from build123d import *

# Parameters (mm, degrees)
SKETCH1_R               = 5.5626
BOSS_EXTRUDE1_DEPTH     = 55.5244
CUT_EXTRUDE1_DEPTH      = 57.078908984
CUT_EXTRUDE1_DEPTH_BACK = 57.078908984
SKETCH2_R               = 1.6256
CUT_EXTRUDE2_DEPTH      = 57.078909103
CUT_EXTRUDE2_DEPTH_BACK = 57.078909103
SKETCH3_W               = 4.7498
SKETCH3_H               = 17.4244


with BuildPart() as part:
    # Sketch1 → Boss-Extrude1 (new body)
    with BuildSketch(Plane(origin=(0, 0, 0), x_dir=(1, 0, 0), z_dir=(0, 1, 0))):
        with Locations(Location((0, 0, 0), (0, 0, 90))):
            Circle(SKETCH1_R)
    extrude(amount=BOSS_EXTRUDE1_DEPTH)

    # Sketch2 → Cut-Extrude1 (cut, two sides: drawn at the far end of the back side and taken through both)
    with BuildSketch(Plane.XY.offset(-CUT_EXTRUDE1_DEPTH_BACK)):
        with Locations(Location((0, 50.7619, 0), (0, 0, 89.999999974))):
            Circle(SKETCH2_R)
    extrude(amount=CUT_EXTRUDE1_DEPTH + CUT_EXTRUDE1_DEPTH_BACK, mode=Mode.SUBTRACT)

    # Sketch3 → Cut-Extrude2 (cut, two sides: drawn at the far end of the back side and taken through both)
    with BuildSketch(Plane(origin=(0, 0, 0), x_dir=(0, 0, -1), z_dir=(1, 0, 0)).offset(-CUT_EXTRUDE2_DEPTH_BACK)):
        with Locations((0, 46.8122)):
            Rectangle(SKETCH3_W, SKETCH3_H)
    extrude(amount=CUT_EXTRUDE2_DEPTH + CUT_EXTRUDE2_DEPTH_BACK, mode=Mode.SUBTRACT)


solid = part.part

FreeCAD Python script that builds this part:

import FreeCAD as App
import Part
import Sketcher
from FreeCAD import Vector
Q = App.Units.Quantity


def add_polygon(sketch, points):
    """Adds a closed chain of lines whose ends are joined by coincident constraints."""
    first, n = sketch.GeometryCount, len(points)
    for a, b in zip(points, points[1:] + points[:1]):
        sketch.addGeometry(Part.LineSegment(App.Vector(*a, 0), App.Vector(*b, 0)), False)
    for i in range(n):
        sketch.addConstraint(Sketcher.Constraint("Coincident", first + i, 2, first + (i + 1) % n, 1))

doc = App.newDocument("Part")
body = doc.addObject("PartDesign::Body", "Body")

# Sketch on XZ plane
sketch1 = body.newObject("Sketcher::SketchObject", "Sketch")
sketch1.AttachmentSupport = (doc.getObject("XZ_Plane"), [""])
sketch1.MapMode = "FlatFace"
sketch1.addGeometry(Part.Circle(Vector(0, 0, 0), Vector(0, 0, 1), 5.5626), False)
sketch1.addConstraint([
    Sketcher.Constraint("Coincident", 0, 3, -1, 1),
    Sketcher.Constraint("Diameter", 0, Q("0.438 in")),
])
pad1 = body.newObject("PartDesign::Pad", "Pad")
pad1.Profile = sketch1
pad1.Length = Q("2.186 in")
pad1.Reversed = True

# Sketch on XY plane
sketch2 = body.newObject("Sketcher::SketchObject", "Sketch001")
sketch2.AttachmentSupport = (doc.getObject("XY_Plane"), [""])
sketch2.MapMode = "FlatFace"
sketch2.addGeometry(Part.Circle(Vector(0, 50.7619, 0), Vector(0, 0, 1), 1.6256), False)
sketch2.addConstraint([
    Sketcher.Constraint("PointOnObject", 0, 3, -2),
    Sketcher.Constraint("Diameter", 0, Q("0.128 in")),
    Sketcher.Constraint("DistanceY", -1, 1, 0, 3, Q("1.9985 in")),
])
pocket1 = body.newObject("PartDesign::Pocket", "Pocket")
pocket1.Profile = sketch2
pocket1.Type = "ThroughAll"
pocket1.Midplane = True

# Sketch on YZ plane
sketch3 = body.newObject("Sketcher::SketchObject", "Sketch002")
sketch3.AttachmentSupport = (doc.getObject("YZ_Plane"), [""])
sketch3.MapMode = "FlatFace"
add_polygon(sketch3, [(55.5244, 2.3749), (38.1, 2.3749), (38.1, -2.3749), (55.5244, -2.3749)])  # lines 0-3
sketch3.addConstraint([
    Sketcher.Constraint("Horizontal", 0),
    Sketcher.Constraint("Vertical", 1),
    Sketcher.Constraint("Horizontal", 2),
    Sketcher.Constraint("Vertical", 3),
    Sketcher.Constraint("DistanceX", -1, 1, 0, 2, Q("1.5 in")),
    Sketcher.Constraint("DistanceX", 0, 2, 0, 1, Q("0.686 in")),
    Sketcher.Constraint("DistanceY", 1, 2, 1, 1, Q("0.187 in")),
    Sketcher.Constraint("DistanceY", -1, 1, 0, 2, Q("0.0935 in")),
])
pocket2 = body.newObject("PartDesign::Pocket", "Pocket001")
pocket2.Profile = sketch3
pocket2.Type = "ThroughAll"
pocket2.Midplane = True

doc.recompute()
